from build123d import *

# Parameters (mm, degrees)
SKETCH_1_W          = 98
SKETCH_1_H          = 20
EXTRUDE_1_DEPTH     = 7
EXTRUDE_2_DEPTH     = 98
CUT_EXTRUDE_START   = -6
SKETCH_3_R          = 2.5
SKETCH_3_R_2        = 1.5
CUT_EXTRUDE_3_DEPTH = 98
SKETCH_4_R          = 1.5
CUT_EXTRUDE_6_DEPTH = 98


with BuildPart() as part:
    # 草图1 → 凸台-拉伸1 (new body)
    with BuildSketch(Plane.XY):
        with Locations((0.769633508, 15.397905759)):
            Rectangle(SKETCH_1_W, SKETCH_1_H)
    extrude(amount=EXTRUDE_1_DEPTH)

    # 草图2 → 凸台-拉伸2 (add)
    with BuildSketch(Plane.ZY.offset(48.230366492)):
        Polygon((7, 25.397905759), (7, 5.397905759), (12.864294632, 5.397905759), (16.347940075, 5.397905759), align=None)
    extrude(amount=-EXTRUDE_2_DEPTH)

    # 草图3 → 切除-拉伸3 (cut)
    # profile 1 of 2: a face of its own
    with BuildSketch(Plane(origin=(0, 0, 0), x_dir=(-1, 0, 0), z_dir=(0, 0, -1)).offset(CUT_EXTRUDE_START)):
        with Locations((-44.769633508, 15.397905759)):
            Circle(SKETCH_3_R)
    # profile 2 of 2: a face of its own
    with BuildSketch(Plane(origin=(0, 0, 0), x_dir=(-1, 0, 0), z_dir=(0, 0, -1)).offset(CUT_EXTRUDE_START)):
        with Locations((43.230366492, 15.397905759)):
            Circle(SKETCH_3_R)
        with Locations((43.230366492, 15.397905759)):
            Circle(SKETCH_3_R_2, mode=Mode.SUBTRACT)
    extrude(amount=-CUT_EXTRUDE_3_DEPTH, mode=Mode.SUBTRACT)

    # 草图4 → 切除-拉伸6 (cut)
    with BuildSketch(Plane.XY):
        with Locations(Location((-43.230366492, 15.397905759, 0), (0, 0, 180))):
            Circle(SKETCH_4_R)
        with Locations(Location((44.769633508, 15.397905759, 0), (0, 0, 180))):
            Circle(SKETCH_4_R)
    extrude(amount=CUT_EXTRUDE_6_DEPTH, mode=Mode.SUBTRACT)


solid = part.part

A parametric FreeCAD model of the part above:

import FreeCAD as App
import Part
import Sketcher
from FreeCAD import Vector
Q = App.Units.Quantity

doc = App.newDocument("Part")
body = doc.addObject("PartDesign::Body", "Body")

sketch1 = body.newObject("Sketcher::SketchObject", "Sketch")
sketch1.AttachmentSupport = (doc.getObject("XY_Plane"), [""])
sketch1.MapMode = "FlatFace"
sketch1.addGeometry(Part.LineSegment(Vector(-48, 25, 0), Vector(-48, 5, 0)), False)
sketch1.addGeometry(Part.LineSegment(Vector(-48, 5, 0), Vector(50, 5, 0)), False)
sketch1.addGeometry(Part.LineSegment(Vector(50, 5, 0), Vector(50, 25, 0)), False)
sketch1.addGeometry(Part.LineSegment(Vector(50, 25, 0), Vector(-48, 25, 0)), False)
sketch1.addConstraint(Sketcher.Constraint("Coincident", 0, 2, 1, 1))
sketch1.addConstraint(Sketcher.Constraint("Coincident", 1, 2, 2, 1))
sketch1.addConstraint(Sketcher.Constraint("Coincident", 2, 2, 3, 1))
sketch1.addConstraint(Sketcher.Constraint("Coincident", 3, 2, 0, 1))
sketch1.addConstraint(Sketcher.Constraint("Vertical", 0))
sketch1.addConstraint(Sketcher.Constraint("Horizontal", 1))
sketch1.addConstraint(Sketcher.Constraint("Vertical", 2))
sketch1.addConstraint(Sketcher.Constraint("Horizontal", 3))
sketch1.addConstraint(Sketcher.Constraint("DistanceX", 1, 1, 1, 2, Q("98 mm")))
sketch1.addConstraint(Sketcher.Constraint("DistanceY", 0, 2, 0, 1, Q("20 mm")))
sketch1.addConstraint(Sketcher.Constraint("DistanceX", 0, 2, -1, 1, Q("48.230366 mm")))
sketch1.addConstraint(Sketcher.Constraint("DistanceY", -1, 1, 0, 2, Q("5.397906 mm")))
pad1 = body.newObject("PartDesign::Pad", "Pad")
pad1.Profile = sketch1
pad1.Length = 7

sketch2 = body.newObject("Sketcher::SketchObject", "Sketch001")
sketch2.AttachmentSupport = (doc.getObject("YZ_Plane"), [""])
sketch2.MapMode = "FlatFace"
sketch2.AttachmentOffset = App.Placement(Vector(0, 0, -48.230366), App.Rotation())
sketch2.addGeometry(Part.LineSegment(Vector(25, 7, 0), Vector(5, 7, 0)), False)
sketch2.addGeometry(Part.LineSegment(Vector(5, 7, 0), Vector(5, 16, 0)), False)
sketch2.addGeometry(Part.LineSegment(Vector(5, 16, 0), Vector(25, 7, 0)), False)
sketch2.addConstraint(Sketcher.Constraint("Coincident", 0, 2, 1, 1))
sketch2.addConstraint(Sketcher.Constraint("Coincident", 1, 2, 2, 1))
sketch2.addConstraint(Sketcher.Constraint("Coincident", 2, 2, 0, 1))
sketch2.addConstraint(Sketcher.Constraint("Horizontal", 0))
sketch2.addConstraint(Sketcher.Constraint("Vertical", 1))
sketch2.addConstraint(Sketcher.Constraint("DistanceX", 0, 2, 0, 1, Q("20 mm")))
sketch2.addConstraint(Sketcher.Constraint("DistanceY", -1, 1, 0, 2, Q("7 mm")))
sketch2.addConstraint(Sketcher.Constraint("DistanceY", 1, 1, 1, 2, Q("9.34794 mm")))
sketch2.addConstraint(Sketcher.Constraint("DistanceX", -1, 1, 0, 2, Q("5.397906 mm")))
pad2 = body.newObject("PartDesign::Pad", "Pad001")
pad2.Profile = sketch2
pad2.Length = 98

sketch3 = body.newObject("Sketcher::SketchObject", "Sketch002")
sketch3.AttachmentSupport = (doc.getObject("XY_Plane"), [""])
sketch3.MapMode = "FlatFace"
sketch3.AttachmentOffset = App.Placement(Vector(0, 0, 6), App.Rotation())
sketch3.addGeometry(Part.Circle(Vector(44.8, 15.4, 0), Vector(0, 0, 1), 2.5), False)
sketch3.addGeometry(Part.Circle(Vector(-43.2, 15.4, 0), Vector(0, 0, 1), 2.5), False)
sketch3.addGeometry(Part.Circle(Vector(-43.2, 15.4, 0), Vector(0, 0, 1), 1.5), False)
sketch3.addConstraint(Sketcher.Constraint("Coincident", 2, 3, 1, 3))
sketch3.addConstraint(Sketcher.Constraint("Equal", 0, 1))
sketch3.addConstraint(Sketcher.Constraint("Horizontal", 0, 3, 1, 3))
sketch3.addConstraint(Sketcher.Constraint("Diameter", 0, Q("5 mm")))
sketch3.addConstraint(Sketcher.Constraint("Diameter", 2, Q("3 mm")))
sketch3.addConstraint(Sketcher.Constraint("DistanceX", 1, 3, 0, 3, Q("88 mm")))
sketch3.addConstraint(Sketcher.Constraint("DistanceX", -1, 1, 0, 3, Q("44.769634 mm")))
sketch3.addConstraint(Sketcher.Constraint("DistanceY", -1, 1, 0, 3, Q("15.397906 mm")))
pocket1 = body.newObject("PartDesign::Pocket", "Pocket")
pocket1.Profile = sketch3
pocket1.Length = 98
pocket1.Reversed = True

sketch4 = body.newObject("Sketcher::SketchObject", "Sketch003")
sketch4.AttachmentSupport = (doc.getObject("XY_Plane"), [""])
sketch4.MapMode = "FlatFace"
sketch4.addGeometry(Part.Circle(Vector(-43.2, 15.4, 0), Vector(0, 0, 1), 1.5), False)
sketch4.addGeometry(Part.Circle(Vector(44.8, 15.4, 0), Vector(0, 0, 1), 1.5), False)
sketch4.addConstraint(Sketcher.Constraint("Equal", 0, 1))
sketch4.addConstraint(Sketcher.Constraint("Horizontal", 0, 3, 1, 3))
sketch4.addConstraint(Sketcher.Constraint("Diameter", 0, Q("3 mm")))
sketch4.addConstraint(Sketcher.Constraint("DistanceX", 0, 3, 1, 3, Q("88 mm")))
sketch4.addConstraint(Sketcher.Constraint("DistanceX", 0, 3, -1, 1, Q("43.230366 mm")))
sketch4.addConstraint(Sketcher.Constraint("DistanceY", -1, 1, 0, 3, Q("15.397906 mm")))
pocket2 = body.newObject("PartDesign::Pocket", "Pocket001")
pocket2.Profile = sketch4
pocket2.Length = 98
pocket2.Reversed = True

doc.recompute()
